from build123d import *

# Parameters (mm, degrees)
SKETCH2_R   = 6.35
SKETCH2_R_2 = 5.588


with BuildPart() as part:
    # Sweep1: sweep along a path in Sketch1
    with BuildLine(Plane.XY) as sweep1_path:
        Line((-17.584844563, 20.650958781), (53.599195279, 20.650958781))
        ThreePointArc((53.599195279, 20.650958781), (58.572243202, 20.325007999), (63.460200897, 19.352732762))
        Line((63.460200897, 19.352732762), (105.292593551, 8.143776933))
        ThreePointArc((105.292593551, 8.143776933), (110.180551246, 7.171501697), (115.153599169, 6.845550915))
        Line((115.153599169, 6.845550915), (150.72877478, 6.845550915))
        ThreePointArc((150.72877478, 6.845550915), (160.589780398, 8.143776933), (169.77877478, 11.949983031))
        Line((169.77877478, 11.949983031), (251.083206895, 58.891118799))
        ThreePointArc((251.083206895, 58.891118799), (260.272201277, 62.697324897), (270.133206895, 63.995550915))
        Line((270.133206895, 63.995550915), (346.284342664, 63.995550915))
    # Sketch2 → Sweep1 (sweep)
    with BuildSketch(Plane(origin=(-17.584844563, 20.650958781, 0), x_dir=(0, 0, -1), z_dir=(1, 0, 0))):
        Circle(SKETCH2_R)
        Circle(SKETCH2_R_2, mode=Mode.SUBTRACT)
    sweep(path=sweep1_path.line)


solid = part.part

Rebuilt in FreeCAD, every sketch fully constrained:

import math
import FreeCAD as App
import Part
import Sketcher

V = App.Vector
Q = App.Units.Quantity

doc = App.newDocument("Part")
params = doc.addObject("Spreadsheet::Sheet", "Params")
for row, (alias, value) in enumerate([
    ("sketch1_diameter", "0.5 in"),
    ("sketch1_diameter2", "0.44 in"),
    ("sketch2_radius", "1.5 in"),
], start=1):
    params.set(f"A{row}", alias)
    params.set(f"B{row}", "=" + value)
    params.setAlias(f"B{row}", alias)

body = doc.addObject("PartDesign::Body", "Body")

# Sketch on YZ plane
sketch1 = body.newObject("Sketcher::SketchObject", "Sketch")
sketch1.AttachmentSupport = (doc.getObject("YZ_Plane"), [""])
sketch1.MapMode = "FlatFace"
sketch1.AttachmentOffset = App.Placement(V(0, 0, -17.584845), App.Rotation())
sketch1.addGeometry([
    Part.Circle(V(20.650959, 0, 0), V(0, 0, 1), 6.35),
    Part.Circle(V(20.650959, 0, 0), V(0, 0, 1), 5.588),
], False)
sketch1.addConstraint([
    Sketcher.Constraint("Coincident", 1, 3, 0, 3),
    Sketcher.Constraint("PointOnObject", 0, 3, -1),
    Sketcher.Constraint("Diameter", 0, Q("0.5 in")),
    Sketcher.Constraint("Diameter", 1, Q("0.44 in")),
    Sketcher.Constraint("DistanceX", -1, 1, 0, 3, 20.650959),
])
sketch1.setExpression("Constraints[2]", "Params.sketch1_diameter")
sketch1.setExpression("Constraints[3]", "Params.sketch1_diameter2")

# Sketch on XY plane
sketch2 = body.newObject("Sketcher::SketchObject", "Sketch001")
sketch2.AttachmentSupport = (doc.getObject("XY_Plane"), [""])
sketch2.MapMode = "FlatFace"
sketch2.addGeometry([
    Part.LineSegment(V(-17.584845, 20.650959, 0), V(53.599195, 20.650959, 0)),  # 0
    Part.ArcOfCircle(Part.Circle(V(53.599195, -17.449041, 0), V(0, 0, 1), 38.1), math.radians(75), math.radians(90)),  # 1
    Part.LineSegment(V(63.460201, 19.352733, 0), V(105.292594, 8.143777, 0)),  # 2
    Part.ArcOfCircle(Part.Circle(V(115.153599, 44.945551, 0), V(0, 0, 1), 38.1), math.radians(-105), math.radians(-90)),  # 3
    Part.LineSegment(V(115.153599, 6.845551, 0), V(150.728775, 6.845551, 0)),  # 4
    Part.ArcOfCircle(Part.Circle(V(150.728775, 44.945551, 0), V(0, 0, 1), 38.1), math.radians(-90), math.radians(-60)),  # 5
    Part.LineSegment(V(169.778775, 11.949983, 0), V(251.083207, 58.891119, 0)),  # 6
    Part.ArcOfCircle(Part.Circle(V(270.133207, 25.895551, 0), V(0, 0, 1), 38.1), math.radians(90), math.radians(120)),  # 7
    Part.LineSegment(V(270.133207, 63.995551, 0), V(346.284343, 63.995551, 0)),  # 8
], False)
sketch2.addConstraint([
    Sketcher.Constraint("Tangent", 0, 2, 1, 2),
    Sketcher.Constraint("Tangent", 1, 1, 2, 1),
    Sketcher.Constraint("Tangent", 2, 2, 3, 1),
    Sketcher.Constraint("Tangent", 3, 2, 4, 1),
    Sketcher.Constraint("Tangent", 4, 2, 5, 1),
    Sketcher.Constraint("Tangent", 5, 2, 6, 1),
    Sketcher.Constraint("Tangent", 6, 2, 7, 2),
    Sketcher.Constraint("Tangent", 7, 1, 8, 1),
    Sketcher.Constraint("Horizontal", 0),
    Sketcher.Constraint("Horizontal", 4),
    Sketcher.Constraint("Horizontal", 8),
    Sketcher.Constraint("Equal", 1, 3),
    Sketcher.Constraint("Equal", 3, 5),
    Sketcher.Constraint("Equal", 5, 7),
    Sketcher.Constraint("Radius", 1, Q("1.5 in")),
    Sketcher.Constraint("Angle", 2, Q("-15 deg")),
    Sketcher.Constraint("Angle", 6, Q("30 deg")),
    Sketcher.Constraint("DistanceY", 7, 3, 5, 3, Q("0.75 in")),
    Sketcher.Constraint("DistanceX", 0, 1, 0, 2, 71.18404),
    Sketcher.Constraint("DistanceX", -1, 1, 3, 3, 115.153599),
    Sketcher.Constraint("DistanceX", -1, 1, 1, 1, 63.460201),
    Sketcher.Constraint("DistanceX", 4, 1, 4, 2, 35.575176),
    Sketcher.Constraint("DistanceX", 8, 1, 8, 2, 76.151136),
    Sketcher.Constraint("DistanceY", 1, 3, -1, 1, 17.449041),
])
sketch2.setExpression("Constraints[14]", "Params.sketch2_radius")
doc.recompute()

additivepipe = body.newObject("PartDesign::AdditivePipe", "AdditivePipe")
additivepipe.Profile = sketch1
additivepipe.Spine = (sketch2, ["Edge1", "Edge2", "Edge3", "Edge4", "Edge5", "Edge6", "Edge7", "Edge8", "Edge9"])

doc.recompute()
